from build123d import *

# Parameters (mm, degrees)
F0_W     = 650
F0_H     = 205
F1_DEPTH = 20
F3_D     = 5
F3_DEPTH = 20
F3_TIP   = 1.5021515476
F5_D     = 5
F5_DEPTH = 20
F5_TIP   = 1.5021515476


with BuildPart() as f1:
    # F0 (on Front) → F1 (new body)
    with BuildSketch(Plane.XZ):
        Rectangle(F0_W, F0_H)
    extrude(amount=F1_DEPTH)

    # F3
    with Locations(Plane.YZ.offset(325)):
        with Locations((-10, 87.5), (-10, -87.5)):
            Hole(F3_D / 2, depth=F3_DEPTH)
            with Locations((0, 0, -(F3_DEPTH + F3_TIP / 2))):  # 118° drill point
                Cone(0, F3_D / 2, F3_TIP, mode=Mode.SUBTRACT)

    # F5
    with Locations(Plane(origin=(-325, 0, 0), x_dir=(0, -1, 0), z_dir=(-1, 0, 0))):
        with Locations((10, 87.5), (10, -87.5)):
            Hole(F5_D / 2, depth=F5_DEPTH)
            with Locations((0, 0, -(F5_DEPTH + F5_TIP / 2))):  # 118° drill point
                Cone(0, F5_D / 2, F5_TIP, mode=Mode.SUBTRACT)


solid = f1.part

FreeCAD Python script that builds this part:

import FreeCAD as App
import Part
import Sketcher

V = App.Vector

doc = App.newDocument("Part")
body = doc.addObject("PartDesign::Body", "Body")

# Sketch on XZ plane
sketch1 = body.newObject("Sketcher::SketchObject", "Sketch")
sketch1.AttachmentSupport = (doc.getObject("XZ_Plane"), [""])
sketch1.MapMode = "FlatFace"
sketch1.addGeometry(Part.LineSegment(V(-325, 102, 0), V(-325, -102, 0)), False)
sketch1.addGeometry(Part.LineSegment(V(-325, -102, 0), V(325, -102, 0)), False)
sketch1.addGeometry(Part.LineSegment(V(325, -102, 0), V(325, 102, 0)), False)
sketch1.addGeometry(Part.LineSegment(V(325, 102, 0), V(-325, 102, 0)), False)
sketch1.addConstraint(Sketcher.Constraint("Coincident", 0, 2, 1, 1))
sketch1.addConstraint(Sketcher.Constraint("Coincident", 1, 2, 2, 1))
sketch1.addConstraint(Sketcher.Constraint("Coincident", 2, 2, 3, 1))
sketch1.addConstraint(Sketcher.Constraint("Coincident", 3, 2, 0, 1))
sketch1.addConstraint(Sketcher.Constraint("Vertical", 0))
sketch1.addConstraint(Sketcher.Constraint("Horizontal", 1))
sketch1.addConstraint(Sketcher.Constraint("Vertical", 2))
sketch1.addConstraint(Sketcher.Constraint("Horizontal", 3))
sketch1.addConstraint(Sketcher.Constraint("Symmetric", 0, 2, 2, 2, -1, 1))
sketch1.addConstraint(Sketcher.Constraint("DistanceX", 1, 1, 1, 2, 650.0))
sketch1.addConstraint(Sketcher.Constraint("DistanceY", 0, 2, 0, 1, 205.0))
pad1 = body.newObject("PartDesign::Pad", "Pad")
pad1.Profile = sketch1
pad1.Length = 20

# Sketch on YZ plane
sketch2 = body.newObject("Sketcher::SketchObject", "Sketch001")
sketch2.AttachmentSupport = (doc.getObject("YZ_Plane"), [""])
sketch2.MapMode = "FlatFace"
sketch2.AttachmentOffset = App.Placement(V(0, 0, 325), App.Rotation())
sketch2.addGeometry(Part.Circle(V(-10, 87.5, 0), V(0, 0, 1), 2.5), False)
sketch2.addGeometry(Part.Circle(V(-10, -87.5, 0), V(0, 0, 1), 2.5), False)
sketch2.addConstraint(Sketcher.Constraint("Equal", 0, 1))
sketch2.addConstraint(Sketcher.Constraint("Symmetric", 0, 3, 1, 3, -1))
sketch2.addConstraint(Sketcher.Constraint("Diameter", 0, 5.0))
sketch2.addConstraint(Sketcher.Constraint("DistanceX", 0, 3, -1, 1, 10.0))
sketch2.addConstraint(Sketcher.Constraint("DistanceY", 1, 3, 0, 3, 175.0))
doc.recompute()
hole = body.newObject("PartDesign::Hole", "Hole")
hole.Profile = sketch2
hole.ThreadType = "None"
hole.Diameter = 5
hole.DepthType = "Dimension"
hole.Depth = 20
hole.DrillPoint = "Angled"
hole.DrillPointAngle = 118

# Sketch on YZ plane
sketch3 = body.newObject("Sketcher::SketchObject", "Sketch002")
sketch3.AttachmentSupport = (doc.getObject("YZ_Plane"), [""])
sketch3.MapMode = "FlatFace"
sketch3.AttachmentOffset = App.Placement(V(0, 0, -325), App.Rotation())
sketch3.addGeometry(Part.Circle(V(-10, 87.5, 0), V(0, 0, 1), 2.5), False)
sketch3.addGeometry(Part.Circle(V(-10, -87.5, 0), V(0, 0, 1), 2.5), False)
sketch3.addConstraint(Sketcher.Constraint("Equal", 0, 1))
sketch3.addConstraint(Sketcher.Constraint("Symmetric", 0, 3, 1, 3, -1))
sketch3.addConstraint(Sketcher.Constraint("Diameter", 0, 5.0))
sketch3.addConstraint(Sketcher.Constraint("DistanceX", 0, 3, -1, 1, 10.0))
sketch3.addConstraint(Sketcher.Constraint("DistanceY", 1, 3, 0, 3, 175.0))
doc.recompute()
hole2 = body.newObject("PartDesign::Hole", "Hole001")
hole2.Profile = sketch3
hole2.ThreadType = "None"
hole2.Diameter = 5
hole2.DepthType = "Dimension"
hole2.Depth = 20
hole2.DrillPoint = "Angled"
hole2.DrillPointAngle = 118
hole2.Reversed = True

doc.recompute()
